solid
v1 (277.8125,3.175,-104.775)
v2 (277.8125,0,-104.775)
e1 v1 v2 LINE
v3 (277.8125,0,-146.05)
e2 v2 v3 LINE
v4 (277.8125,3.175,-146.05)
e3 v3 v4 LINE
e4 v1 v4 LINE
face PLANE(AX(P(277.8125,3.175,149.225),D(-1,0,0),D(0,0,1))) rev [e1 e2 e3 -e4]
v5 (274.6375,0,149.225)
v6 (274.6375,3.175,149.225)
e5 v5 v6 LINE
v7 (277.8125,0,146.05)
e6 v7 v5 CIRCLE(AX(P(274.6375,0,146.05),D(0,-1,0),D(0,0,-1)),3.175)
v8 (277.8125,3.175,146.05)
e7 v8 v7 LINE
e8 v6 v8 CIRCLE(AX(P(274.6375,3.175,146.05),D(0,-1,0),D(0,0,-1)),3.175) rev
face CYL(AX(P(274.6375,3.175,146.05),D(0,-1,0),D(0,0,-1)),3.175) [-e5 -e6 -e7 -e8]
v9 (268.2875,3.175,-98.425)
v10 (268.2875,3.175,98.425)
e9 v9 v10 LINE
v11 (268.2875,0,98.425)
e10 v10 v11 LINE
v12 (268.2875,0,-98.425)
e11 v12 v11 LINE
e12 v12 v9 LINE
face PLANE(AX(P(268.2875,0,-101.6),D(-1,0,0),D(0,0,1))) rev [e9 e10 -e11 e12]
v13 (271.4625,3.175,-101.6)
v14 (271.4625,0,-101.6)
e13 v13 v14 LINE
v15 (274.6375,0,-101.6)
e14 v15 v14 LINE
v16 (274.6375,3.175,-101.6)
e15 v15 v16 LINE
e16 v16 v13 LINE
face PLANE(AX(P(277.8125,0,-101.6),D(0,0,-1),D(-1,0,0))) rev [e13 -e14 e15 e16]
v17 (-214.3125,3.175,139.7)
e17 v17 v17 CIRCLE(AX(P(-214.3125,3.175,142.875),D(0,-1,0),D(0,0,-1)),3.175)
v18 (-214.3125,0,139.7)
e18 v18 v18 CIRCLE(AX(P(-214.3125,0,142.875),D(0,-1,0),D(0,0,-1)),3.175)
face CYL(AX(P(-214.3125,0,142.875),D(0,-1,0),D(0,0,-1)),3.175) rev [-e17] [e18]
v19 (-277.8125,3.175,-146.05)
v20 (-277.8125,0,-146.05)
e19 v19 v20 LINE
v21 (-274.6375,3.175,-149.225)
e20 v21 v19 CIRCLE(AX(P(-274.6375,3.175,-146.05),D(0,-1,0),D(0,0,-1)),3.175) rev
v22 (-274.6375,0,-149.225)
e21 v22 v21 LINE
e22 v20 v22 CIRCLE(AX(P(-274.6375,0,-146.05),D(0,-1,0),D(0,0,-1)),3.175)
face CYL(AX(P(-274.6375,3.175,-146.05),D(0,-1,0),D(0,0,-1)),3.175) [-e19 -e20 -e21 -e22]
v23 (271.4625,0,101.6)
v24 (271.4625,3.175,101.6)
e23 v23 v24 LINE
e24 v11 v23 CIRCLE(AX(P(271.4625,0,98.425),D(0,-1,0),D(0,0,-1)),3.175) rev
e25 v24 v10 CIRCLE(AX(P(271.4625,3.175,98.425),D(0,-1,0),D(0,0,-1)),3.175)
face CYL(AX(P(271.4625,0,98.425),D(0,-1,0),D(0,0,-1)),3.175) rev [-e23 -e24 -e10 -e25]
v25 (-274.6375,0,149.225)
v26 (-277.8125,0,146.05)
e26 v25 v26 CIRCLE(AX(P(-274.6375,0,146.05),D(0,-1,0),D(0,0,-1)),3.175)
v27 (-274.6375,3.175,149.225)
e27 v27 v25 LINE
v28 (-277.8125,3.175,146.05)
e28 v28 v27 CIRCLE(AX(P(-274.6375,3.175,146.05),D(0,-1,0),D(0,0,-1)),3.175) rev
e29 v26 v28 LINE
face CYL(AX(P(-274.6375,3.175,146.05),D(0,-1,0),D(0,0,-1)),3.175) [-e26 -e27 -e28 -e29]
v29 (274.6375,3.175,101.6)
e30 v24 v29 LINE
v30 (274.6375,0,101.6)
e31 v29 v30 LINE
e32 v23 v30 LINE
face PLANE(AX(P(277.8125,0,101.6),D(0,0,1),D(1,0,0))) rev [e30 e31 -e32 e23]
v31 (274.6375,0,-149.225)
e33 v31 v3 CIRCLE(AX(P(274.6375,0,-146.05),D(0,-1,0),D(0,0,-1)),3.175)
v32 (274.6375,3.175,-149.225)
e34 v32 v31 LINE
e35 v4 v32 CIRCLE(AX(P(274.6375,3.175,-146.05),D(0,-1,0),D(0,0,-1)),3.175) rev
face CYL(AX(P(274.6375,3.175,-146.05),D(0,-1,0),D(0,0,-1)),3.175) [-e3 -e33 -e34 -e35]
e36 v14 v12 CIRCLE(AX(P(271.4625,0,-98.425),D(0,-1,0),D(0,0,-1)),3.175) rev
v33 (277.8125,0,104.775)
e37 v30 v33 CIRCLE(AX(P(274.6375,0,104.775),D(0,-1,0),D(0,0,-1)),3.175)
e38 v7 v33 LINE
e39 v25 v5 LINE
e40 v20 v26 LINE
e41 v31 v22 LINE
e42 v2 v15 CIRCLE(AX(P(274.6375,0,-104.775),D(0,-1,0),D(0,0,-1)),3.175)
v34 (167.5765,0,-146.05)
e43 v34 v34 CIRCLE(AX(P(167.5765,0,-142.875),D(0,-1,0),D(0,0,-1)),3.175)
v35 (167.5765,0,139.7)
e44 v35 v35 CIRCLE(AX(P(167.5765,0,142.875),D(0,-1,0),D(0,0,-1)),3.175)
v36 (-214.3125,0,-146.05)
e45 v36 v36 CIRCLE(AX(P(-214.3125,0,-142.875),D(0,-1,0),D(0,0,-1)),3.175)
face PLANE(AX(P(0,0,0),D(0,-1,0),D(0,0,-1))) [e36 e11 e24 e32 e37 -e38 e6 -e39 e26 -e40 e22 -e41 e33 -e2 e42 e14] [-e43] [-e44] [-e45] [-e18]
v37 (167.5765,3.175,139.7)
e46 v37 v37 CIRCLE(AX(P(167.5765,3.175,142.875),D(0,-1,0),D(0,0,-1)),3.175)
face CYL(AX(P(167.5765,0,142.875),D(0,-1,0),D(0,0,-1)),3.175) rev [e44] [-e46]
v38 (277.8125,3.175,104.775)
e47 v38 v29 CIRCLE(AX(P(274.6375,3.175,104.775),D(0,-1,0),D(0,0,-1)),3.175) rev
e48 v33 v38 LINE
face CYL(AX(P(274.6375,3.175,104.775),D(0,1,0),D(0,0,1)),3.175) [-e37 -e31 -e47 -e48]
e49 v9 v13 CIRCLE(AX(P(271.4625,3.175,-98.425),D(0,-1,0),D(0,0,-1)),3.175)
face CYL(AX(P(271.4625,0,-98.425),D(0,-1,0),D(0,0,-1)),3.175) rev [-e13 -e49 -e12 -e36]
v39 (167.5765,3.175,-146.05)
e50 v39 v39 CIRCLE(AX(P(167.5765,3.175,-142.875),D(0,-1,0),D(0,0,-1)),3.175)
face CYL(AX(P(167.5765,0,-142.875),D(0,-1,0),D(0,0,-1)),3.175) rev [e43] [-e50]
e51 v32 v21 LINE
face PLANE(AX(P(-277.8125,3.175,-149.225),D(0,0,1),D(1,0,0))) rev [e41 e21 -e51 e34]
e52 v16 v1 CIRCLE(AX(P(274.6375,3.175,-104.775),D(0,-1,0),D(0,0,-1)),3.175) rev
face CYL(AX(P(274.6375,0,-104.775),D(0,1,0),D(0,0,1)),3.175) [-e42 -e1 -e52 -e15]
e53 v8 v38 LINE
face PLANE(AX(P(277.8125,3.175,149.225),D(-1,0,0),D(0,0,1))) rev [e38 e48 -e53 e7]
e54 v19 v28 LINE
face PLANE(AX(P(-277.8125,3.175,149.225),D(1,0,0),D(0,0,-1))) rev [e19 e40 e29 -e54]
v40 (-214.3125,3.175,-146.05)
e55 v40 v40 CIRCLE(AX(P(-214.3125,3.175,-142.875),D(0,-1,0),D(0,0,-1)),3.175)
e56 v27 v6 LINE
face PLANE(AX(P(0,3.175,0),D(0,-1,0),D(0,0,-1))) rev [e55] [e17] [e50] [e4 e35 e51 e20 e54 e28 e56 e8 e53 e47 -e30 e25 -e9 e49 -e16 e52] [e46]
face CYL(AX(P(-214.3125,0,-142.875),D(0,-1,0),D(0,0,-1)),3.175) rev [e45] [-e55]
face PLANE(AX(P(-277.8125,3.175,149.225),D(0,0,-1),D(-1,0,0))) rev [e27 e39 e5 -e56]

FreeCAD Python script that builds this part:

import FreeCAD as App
import Part
import Sketcher

V = App.Vector
Q = App.Units.Quantity


def edges_at(feature, points):
    """Names of the edges that pass closest to the given points."""
    edges = feature.Shape.Edges
    near = lambda p: min(range(len(edges)), key=lambda i: edges[i].distToShape(Part.Vertex(*p))[0])
    return sorted({f"Edge{near(p) + 1}" for p in points})


def add_polygon(sketch, points):
    """Adds a closed chain of lines whose ends are joined by coincident constraints."""
    first, n = sketch.GeometryCount, len(points)
    for a, b in zip(points, points[1:] + points[:1]):
        sketch.addGeometry(Part.LineSegment(App.Vector(*a, 0), App.Vector(*b, 0)), False)
    for i in range(n):
        sketch.addConstraint(Sketcher.Constraint("Coincident", first + i, 2, first + (i + 1) % n, 1))

doc = App.newDocument("Part")
params = doc.addObject("Spreadsheet::Sheet", "Params")
for row, (alias, value) in enumerate([
    ("sketch1_height", "11.75 in"),
    ("sketch1_width", "21.875 in"),
    ("pad1_length", "0.125 in"),
    ("sketch2_height", "8 in"),
    ("sketch2_width", "0.375 in"),
    ("fillet_radius", "0.125 in"),
    ("sketch3_diameter", "0.25 in"),
    ("hole_diameter", "0.25 in"),
    ("fillet2_radius", "0.125 in"),
], start=1):
    params.set(f"A{row}", alias)
    params.set(f"B{row}", "=" + value)
    params.setAlias(f"B{row}", alias)

body = doc.addObject("PartDesign::Body", "Body")

sketch1 = body.newObject("Sketcher::SketchObject", "Sketch")
sketch1.AttachmentSupport = (doc.getObject("XZ_Plane"), [""])
sketch1.MapMode = "FlatFace"
add_polygon(sketch1, [(-277.8125, -149.225), (-277.8125, 149.225), (277.8125, 149.225), (277.8125, -149.225)])
sketch1.addConstraint([
    Sketcher.Constraint("Vertical", 0),
    Sketcher.Constraint("Horizontal", 1),
    Sketcher.Constraint("Vertical", 2),
    Sketcher.Constraint("Horizontal", 3),
    Sketcher.Constraint("Symmetric", 0, 2, 2, 2, -1, 1),
    Sketcher.Constraint("DistanceY", 0, 1, 0, 2, Q("11.75 in")),
    Sketcher.Constraint("DistanceX", 1, 1, 1, 2, Q("21.875 in")),
])
sketch1.setExpression("Constraints[9]", "Params.sketch1_height")
sketch1.setExpression("Constraints[10]", "Params.sketch1_width")
pad1 = body.newObject("PartDesign::Pad", "Pad")
pad1.Profile = sketch1
pad1.setExpression("Length", "Params.pad1_length")
pad1.Reversed = True

sketch2 = body.newObject("Sketcher::SketchObject", "Sketch001")
sketch2.AttachmentSupport = (doc.getObject("XZ_Plane"), [""])
sketch2.MapMode = "FlatFace"
sketch2.AttachmentOffset = App.Placement(V(0, 0, -0.125 * 25.4), App.Rotation())
add_polygon(sketch2, [(268.2875, -101.6), (268.2875, 101.6), (277.8125, 101.6), (277.8125, -101.6)])
sketch2.addConstraint([
    Sketcher.Constraint("Vertical", 0),
    Sketcher.Constraint("Horizontal", 1),
    Sketcher.Constraint("Vertical", 2),
    Sketcher.Constraint("Horizontal", 3),
    Sketcher.Constraint("DistanceY", 0, 1, 0, 2, Q("8 in")),
    Sketcher.Constraint("DistanceY", -1, 1, 0, 2, Q("4 in")),
    Sketcher.Constraint("DistanceX", 1, 1, 1, 2, Q("0.375 in")),
    Sketcher.Constraint("DistanceX", -1, 1, 0, 2, Q("10.5625 in")),
])
sketch2.setExpression("Constraints[8]", "Params.sketch2_height")
sketch2.setExpression("Constraints[10]", "Params.sketch2_width")
pocket1 = body.newObject("PartDesign::Pocket", "Pocket")
pocket1.Profile = sketch2
pocket1.Type = "ThroughAll"
pocket1.Reversed = True
doc.recompute()

fillet = body.newObject("PartDesign::Fillet", "Fillet")
fillet.Base = (pocket1, edges_at(pocket1, [(268.288, 1.587, 101.6), (268.288, 1.587, -101.6)]))
fillet.setExpression("Radius", "Params.fillet_radius")

sketch3 = body.newObject("Sketcher::SketchObject", "Sketch002")
sketch3.AttachmentSupport = (doc.getObject("XZ_Plane"), [""])
sketch3.MapMode = "FlatFace"
sketch3.addGeometry([
    Part.Circle(V(167.5765, 142.875, 0), V(0, 0, 1), 3.175),
    Part.Circle(V(-214.3125, 142.875, 0), V(0, 0, 1), 3.175),
], False)
sketch3.addConstraint([
    Sketcher.Constraint("Equal", 0, 1),
    Sketcher.Constraint("Horizontal", 0, 3, 1, 3),
    Sketcher.Constraint("Diameter", 0, Q("0.25 in")),
    Sketcher.Constraint("DistanceY", -1, 1, 0, 3, Q("5.625 in")),
    Sketcher.Constraint("DistanceX", 1, 3, -1, 1, Q("8.4375 in")),
    Sketcher.Constraint("DistanceX", 1, 3, 0, 3, Q("15.035 in")),
])
sketch3.setExpression("Constraints[2]", "Params.sketch3_diameter")
doc.recompute()
hole = body.newObject("PartDesign::Hole", "Hole")
hole.Profile = sketch3
hole.ThreadType = "None"
hole.setExpression("Diameter", "Params.hole_diameter")
hole.DepthType = "ThroughAll"
doc.recompute()

mirrored = body.newObject("PartDesign::Mirrored", "Mirrored")
mirrored.Originals = [hole]
mirrored.MirrorPlane = (doc.getObject("XY_Plane"), [""])
body.Tip = mirrored
doc.recompute()

fillet2 = body.newObject("PartDesign::Fillet", "Fillet001")
fillet2.Base = (mirrored, edges_at(mirrored, [
    (277.812, 1.587, -101.6),
    (277.812, 1.587, 101.6),
    (277.812, 1.587, 149.225),
    (-277.812, 1.587, 149.225),
    (-277.812, 1.587, -149.225),
    (277.812, 1.587, -149.225),
]))
fillet2.setExpression("Radius", "Params.fillet2_radius")

doc.recompute()
